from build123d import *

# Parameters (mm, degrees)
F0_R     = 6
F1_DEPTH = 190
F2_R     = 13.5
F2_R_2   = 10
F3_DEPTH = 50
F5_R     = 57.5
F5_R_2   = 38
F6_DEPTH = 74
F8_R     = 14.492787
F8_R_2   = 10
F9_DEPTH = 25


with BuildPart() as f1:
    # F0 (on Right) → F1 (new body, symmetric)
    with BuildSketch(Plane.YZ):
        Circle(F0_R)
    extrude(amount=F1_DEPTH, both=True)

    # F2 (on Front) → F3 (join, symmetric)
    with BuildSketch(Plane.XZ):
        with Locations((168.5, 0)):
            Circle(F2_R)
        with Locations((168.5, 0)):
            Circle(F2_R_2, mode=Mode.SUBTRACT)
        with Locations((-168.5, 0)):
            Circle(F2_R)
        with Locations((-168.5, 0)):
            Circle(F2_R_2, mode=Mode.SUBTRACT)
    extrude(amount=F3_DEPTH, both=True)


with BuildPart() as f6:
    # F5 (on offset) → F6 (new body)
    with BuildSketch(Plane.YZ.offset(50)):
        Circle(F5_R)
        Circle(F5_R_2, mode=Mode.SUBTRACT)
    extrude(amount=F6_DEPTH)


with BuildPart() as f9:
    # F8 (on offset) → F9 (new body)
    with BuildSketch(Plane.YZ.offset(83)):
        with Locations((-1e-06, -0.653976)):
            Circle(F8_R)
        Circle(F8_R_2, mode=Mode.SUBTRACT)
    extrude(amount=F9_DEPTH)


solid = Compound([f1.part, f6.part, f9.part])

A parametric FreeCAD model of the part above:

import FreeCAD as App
import Part
import Sketcher

doc = App.newDocument("Part")
body = doc.addObject("PartDesign::Body", "Body")

# Sketch on YZ plane
sketch1 = body.newObject("Sketcher::SketchObject", "Sketch")
sketch1.AttachmentSupport = (doc.getObject("YZ_Plane"), [""])
sketch1.MapMode = "FlatFace"
sketch1.addGeometry(Part.Circle(App.Vector(0, 0, 0), App.Vector(0, 0, 1), 6), False)
sketch1.addConstraint(Sketcher.Constraint("Coincident", 0, 3, -1, 1))
sketch1.addConstraint(Sketcher.Constraint("Diameter", 0, 12.0))
pad1 = body.newObject("PartDesign::Pad", "Pad")
pad1.Profile = sketch1
pad1.Length = 380
pad1.Midplane = True

# Sketch on XZ plane
sketch2 = body.newObject("Sketcher::SketchObject", "Sketch001")
sketch2.AttachmentSupport = (doc.getObject("XZ_Plane"), [""])
sketch2.MapMode = "FlatFace"
sketch2.addGeometry(Part.Circle(App.Vector(168, 0, 0), App.Vector(0, 0, 1), 14), False)
sketch2.addGeometry(Part.Circle(App.Vector(168, 0, 0), App.Vector(0, 0, 1), 10), False)
sketch2.addGeometry(Part.Circle(App.Vector(-168, 0, 0), App.Vector(0, 0, 1), 14), False)
sketch2.addGeometry(Part.Circle(App.Vector(-168, 0, 0), App.Vector(0, 0, 1), 10), False)
sketch2.addConstraint(Sketcher.Constraint("Coincident", 1, 3, 0, 3))
sketch2.addConstraint(Sketcher.Constraint("Coincident", 3, 3, 2, 3))
sketch2.addConstraint(Sketcher.Constraint("Equal", 0, 2))
sketch2.addConstraint(Sketcher.Constraint("Equal", 1, 3))
sketch2.addConstraint(Sketcher.Constraint("Symmetric", 0, 3, 2, 3, -1, 1))
sketch2.addConstraint(Sketcher.Constraint("PointOnObject", 0, 3, -1))
sketch2.addConstraint(Sketcher.Constraint("Diameter", 0, 27.0))
sketch2.addConstraint(Sketcher.Constraint("Diameter", 1, 20.0))
sketch2.addConstraint(Sketcher.Constraint("DistanceX", 2, 3, 0, 3, 337.0))
pad2 = body.newObject("PartDesign::Pad", "Pad001")
pad2.Profile = sketch2
pad2.Length = 100
pad2.Midplane = True
body2 = doc.addObject("PartDesign::Body", "Body001")

# Sketch on YZ plane
sketch3 = body2.newObject("Sketcher::SketchObject", "Sketch002")
sketch3.AttachmentSupport = (doc.getObject("YZ_Plane001"), [""])
sketch3.MapMode = "FlatFace"
sketch3.AttachmentOffset = App.Placement(App.Vector(0, 0, 50), App.Rotation())
sketch3.addGeometry(Part.Circle(App.Vector(0, 0, 0), App.Vector(0, 0, 1), 58), False)
sketch3.addGeometry(Part.Circle(App.Vector(0, 0, 0), App.Vector(0, 0, 1), 38), False)
sketch3.addConstraint(Sketcher.Constraint("Coincident", 0, 3, -1, 1))
sketch3.addConstraint(Sketcher.Constraint("Coincident", 1, 3, -1, 1))
sketch3.addConstraint(Sketcher.Constraint("Diameter", 0, 115.0))
sketch3.addConstraint(Sketcher.Constraint("Diameter", 1, 76.0))
pad3 = body2.newObject("PartDesign::Pad", "Pad002")
pad3.Profile = sketch3
pad3.Length = 74
body3 = doc.addObject("PartDesign::Body", "Body002")

# Sketch on YZ plane
sketch4 = body3.newObject("Sketcher::SketchObject", "Sketch003")
sketch4.AttachmentSupport = (doc.getObject("YZ_Plane002"), [""])
sketch4.MapMode = "FlatFace"
sketch4.AttachmentOffset = App.Placement(App.Vector(0, 0, 83), App.Rotation())
sketch4.addGeometry(Part.Circle(App.Vector(0, -1, 0), App.Vector(0, 0, 1), 14), False)
sketch4.addGeometry(Part.Circle(App.Vector(0, 0, 0), App.Vector(0, 0, 1), 10), False)
sketch4.addConstraint(Sketcher.Constraint("Coincident", 1, 3, -1, 1))
sketch4.addConstraint(Sketcher.Constraint("PointOnObject", 0, 3, -2))
sketch4.addConstraint(Sketcher.Constraint("Diameter", 1, 20.0))
sketch4.addConstraint(Sketcher.Constraint("Diameter", 0, 28.985574))
sketch4.addConstraint(Sketcher.Constraint("DistanceY", 0, 3, -1, 1, 0.653976))
pad4 = body3.newObject("PartDesign::Pad", "Pad003")
pad4.Profile = sketch4
pad4.Length = 25

doc.recompute()
